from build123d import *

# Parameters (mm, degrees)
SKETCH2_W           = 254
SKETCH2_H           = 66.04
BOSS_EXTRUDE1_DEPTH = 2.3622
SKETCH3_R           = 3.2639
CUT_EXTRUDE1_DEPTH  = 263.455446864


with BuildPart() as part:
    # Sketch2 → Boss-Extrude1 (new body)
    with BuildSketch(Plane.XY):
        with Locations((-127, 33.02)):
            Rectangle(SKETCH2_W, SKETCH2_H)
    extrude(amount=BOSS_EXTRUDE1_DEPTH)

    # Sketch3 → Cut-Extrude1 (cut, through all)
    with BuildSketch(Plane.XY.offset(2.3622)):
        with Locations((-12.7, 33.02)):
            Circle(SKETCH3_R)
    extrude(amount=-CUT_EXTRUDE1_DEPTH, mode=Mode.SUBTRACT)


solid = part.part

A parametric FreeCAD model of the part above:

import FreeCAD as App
import Part
import Sketcher

V = App.Vector
Q = App.Units.Quantity

doc = App.newDocument("Part")
body = doc.addObject("PartDesign::Body", "Body")

# Sketch on XY plane
sketch1 = doc.addObject("Sketcher::SketchObject", "Sketch")
body.addObject(sketch1)
sketch1.AttachmentSupport = (doc.XY_Plane, [""])
sketch1.MapMode = "FlatFace"
sketch1.addGeometry(Part.LineSegment(V(-254, 66, 0), V(-254, 0, 0)), False)
sketch1.addGeometry(Part.LineSegment(V(-254, 0, 0), V(0, 0, 0)), False)
sketch1.addGeometry(Part.LineSegment(V(0, 0, 0), V(0, 66, 0)), False)
sketch1.addGeometry(Part.LineSegment(V(0, 66, 0), V(-254, 66, 0)), False)
sketch1.addConstraint(Sketcher.Constraint("Coincident", 0, 2, 1, 1))
sketch1.addConstraint(Sketcher.Constraint("Coincident", 1, 2, 2, 1))
sketch1.addConstraint(Sketcher.Constraint("Coincident", 2, 2, 3, 1))
sketch1.addConstraint(Sketcher.Constraint("Coincident", 3, 2, 0, 1))
sketch1.addConstraint(Sketcher.Constraint("Vertical", 0))
sketch1.addConstraint(Sketcher.Constraint("Horizontal", 1))
sketch1.addConstraint(Sketcher.Constraint("Vertical", 2))
sketch1.addConstraint(Sketcher.Constraint("Horizontal", 3))
sketch1.addConstraint(Sketcher.Constraint("Coincident", 1, 2, -1, 1))
sketch1.addConstraint(Sketcher.Constraint("DistanceX", 1, 1, 1, 2, Q("10 in")))
sketch1.addConstraint(Sketcher.Constraint("DistanceY", 0, 2, 0, 1, Q("2.6 in")))
pad1 = doc.addObject("PartDesign::Pad", "Pad")
body.addObject(pad1)
pad1.Profile = sketch1
pad1.Length = Q("0.093 in")

# Sketch on XY plane
sketch2 = doc.addObject("Sketcher::SketchObject", "Sketch001")
body.addObject(sketch2)
sketch2.AttachmentSupport = (doc.XY_Plane, [""])
sketch2.MapMode = "FlatFace"
sketch2.AttachmentOffset = App.Placement(V(0, 0, 0.093 * 25.4), App.Rotation())
sketch2.addGeometry(Part.Circle(V(-12.7, 33, 0), V(0, 0, 1), 3.3), False)
sketch2.addConstraint(Sketcher.Constraint("Diameter", 0, Q("0.257 in")))
sketch2.addConstraint(Sketcher.Constraint("DistanceX", 0, 3, -1, 1, Q("0.5 in")))
sketch2.addConstraint(Sketcher.Constraint("DistanceY", -1, 1, 0, 3, Q("1.3 in")))
pocket1 = doc.addObject("PartDesign::Pocket", "Pocket")
body.addObject(pocket1)
pocket1.Profile = sketch2
pocket1.Type = "ThroughAll"

doc.recompute()
